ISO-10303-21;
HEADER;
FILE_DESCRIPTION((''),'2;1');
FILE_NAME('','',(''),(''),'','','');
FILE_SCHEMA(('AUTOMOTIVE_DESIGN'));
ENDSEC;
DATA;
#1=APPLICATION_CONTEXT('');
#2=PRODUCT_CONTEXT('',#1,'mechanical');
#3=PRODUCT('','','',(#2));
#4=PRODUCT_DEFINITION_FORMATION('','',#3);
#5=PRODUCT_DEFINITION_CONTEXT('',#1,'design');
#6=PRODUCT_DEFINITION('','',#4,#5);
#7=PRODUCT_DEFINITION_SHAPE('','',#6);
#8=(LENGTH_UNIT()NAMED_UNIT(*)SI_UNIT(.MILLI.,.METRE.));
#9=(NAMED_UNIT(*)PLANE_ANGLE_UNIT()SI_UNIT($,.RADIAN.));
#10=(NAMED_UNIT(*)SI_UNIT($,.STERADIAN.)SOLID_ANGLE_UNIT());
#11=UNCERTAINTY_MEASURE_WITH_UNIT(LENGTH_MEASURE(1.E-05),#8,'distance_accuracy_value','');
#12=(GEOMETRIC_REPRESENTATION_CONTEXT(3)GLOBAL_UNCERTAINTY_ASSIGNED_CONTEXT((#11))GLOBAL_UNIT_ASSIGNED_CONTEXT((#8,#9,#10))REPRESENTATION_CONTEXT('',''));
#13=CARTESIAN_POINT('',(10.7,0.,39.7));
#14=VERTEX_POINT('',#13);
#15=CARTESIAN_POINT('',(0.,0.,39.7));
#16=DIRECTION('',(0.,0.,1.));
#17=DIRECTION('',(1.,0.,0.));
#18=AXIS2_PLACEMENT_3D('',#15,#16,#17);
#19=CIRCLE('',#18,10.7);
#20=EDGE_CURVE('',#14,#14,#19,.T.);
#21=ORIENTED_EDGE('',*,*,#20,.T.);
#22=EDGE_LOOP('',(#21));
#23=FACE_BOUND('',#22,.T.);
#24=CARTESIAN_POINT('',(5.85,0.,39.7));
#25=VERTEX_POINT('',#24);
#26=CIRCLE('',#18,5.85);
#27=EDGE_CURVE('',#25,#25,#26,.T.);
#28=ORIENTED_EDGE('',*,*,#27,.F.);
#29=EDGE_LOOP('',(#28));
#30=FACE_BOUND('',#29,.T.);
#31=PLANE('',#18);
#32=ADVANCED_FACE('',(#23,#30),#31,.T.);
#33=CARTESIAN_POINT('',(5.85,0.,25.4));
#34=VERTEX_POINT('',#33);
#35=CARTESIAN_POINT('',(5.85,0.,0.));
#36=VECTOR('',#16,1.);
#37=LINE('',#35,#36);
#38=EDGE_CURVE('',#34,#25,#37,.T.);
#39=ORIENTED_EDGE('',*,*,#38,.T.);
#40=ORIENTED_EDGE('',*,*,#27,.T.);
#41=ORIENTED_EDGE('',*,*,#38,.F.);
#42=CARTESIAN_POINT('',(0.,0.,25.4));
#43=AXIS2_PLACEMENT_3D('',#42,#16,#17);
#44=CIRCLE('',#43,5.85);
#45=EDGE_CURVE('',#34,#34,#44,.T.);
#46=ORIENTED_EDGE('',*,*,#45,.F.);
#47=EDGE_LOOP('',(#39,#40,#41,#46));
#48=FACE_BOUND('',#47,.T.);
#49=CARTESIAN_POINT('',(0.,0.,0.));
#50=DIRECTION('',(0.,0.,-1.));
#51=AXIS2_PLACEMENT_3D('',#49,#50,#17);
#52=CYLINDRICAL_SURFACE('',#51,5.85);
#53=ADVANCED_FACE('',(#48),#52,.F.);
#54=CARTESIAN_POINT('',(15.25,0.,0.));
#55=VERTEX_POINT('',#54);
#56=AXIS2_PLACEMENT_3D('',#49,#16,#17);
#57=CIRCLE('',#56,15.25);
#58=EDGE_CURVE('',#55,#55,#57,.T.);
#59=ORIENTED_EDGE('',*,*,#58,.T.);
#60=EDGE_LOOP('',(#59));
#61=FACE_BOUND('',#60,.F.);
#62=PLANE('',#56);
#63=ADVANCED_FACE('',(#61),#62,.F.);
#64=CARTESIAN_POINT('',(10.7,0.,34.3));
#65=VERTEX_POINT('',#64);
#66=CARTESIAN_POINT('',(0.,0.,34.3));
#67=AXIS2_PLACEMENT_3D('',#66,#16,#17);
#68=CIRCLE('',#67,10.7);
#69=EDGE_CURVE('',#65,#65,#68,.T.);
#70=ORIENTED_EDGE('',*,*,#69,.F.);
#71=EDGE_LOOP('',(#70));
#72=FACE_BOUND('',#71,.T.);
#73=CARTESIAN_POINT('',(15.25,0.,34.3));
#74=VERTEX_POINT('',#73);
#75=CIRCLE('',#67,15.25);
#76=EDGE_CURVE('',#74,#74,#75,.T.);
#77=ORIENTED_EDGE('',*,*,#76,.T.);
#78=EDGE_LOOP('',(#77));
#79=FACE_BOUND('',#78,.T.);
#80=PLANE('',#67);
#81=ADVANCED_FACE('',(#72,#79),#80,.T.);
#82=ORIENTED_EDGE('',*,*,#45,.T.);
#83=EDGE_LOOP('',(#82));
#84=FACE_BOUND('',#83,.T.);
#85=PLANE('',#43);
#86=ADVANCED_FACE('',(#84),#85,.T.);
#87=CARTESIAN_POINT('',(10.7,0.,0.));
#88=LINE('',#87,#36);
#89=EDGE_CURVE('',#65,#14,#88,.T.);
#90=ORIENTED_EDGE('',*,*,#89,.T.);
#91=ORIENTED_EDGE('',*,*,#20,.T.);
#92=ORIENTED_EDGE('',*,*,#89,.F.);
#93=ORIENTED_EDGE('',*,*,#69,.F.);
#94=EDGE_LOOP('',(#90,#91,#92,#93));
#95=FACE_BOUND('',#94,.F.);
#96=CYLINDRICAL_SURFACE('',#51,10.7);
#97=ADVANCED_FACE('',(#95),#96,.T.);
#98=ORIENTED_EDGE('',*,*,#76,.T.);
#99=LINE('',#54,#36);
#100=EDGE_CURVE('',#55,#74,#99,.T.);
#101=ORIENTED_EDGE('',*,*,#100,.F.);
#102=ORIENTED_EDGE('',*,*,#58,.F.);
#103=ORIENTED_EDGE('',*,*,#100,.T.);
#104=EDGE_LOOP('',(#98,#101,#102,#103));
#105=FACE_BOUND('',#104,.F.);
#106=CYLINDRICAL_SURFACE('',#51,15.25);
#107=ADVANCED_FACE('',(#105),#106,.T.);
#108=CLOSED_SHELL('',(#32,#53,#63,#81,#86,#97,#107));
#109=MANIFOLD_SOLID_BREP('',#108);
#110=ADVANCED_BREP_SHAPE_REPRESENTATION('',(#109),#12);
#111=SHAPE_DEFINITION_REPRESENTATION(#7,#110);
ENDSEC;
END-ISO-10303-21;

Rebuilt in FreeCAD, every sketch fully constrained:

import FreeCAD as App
import Part
import Sketcher

doc = App.newDocument("Part")
body = doc.addObject("PartDesign::Body", "Body")

sketch1 = doc.addObject("Sketcher::SketchObject", "Sketch")
body.addObject(sketch1)
sketch1.AttachmentSupport = (doc.XY_Plane, [""])
sketch1.MapMode = "FlatFace"
sketch1.addGeometry(Part.Circle(App.Vector(0, 0, 0), App.Vector(0, 0, 1), 15.25), False)
sketch1.addGeometry(Part.Circle(App.Vector(0, 0, 0), App.Vector(0, 0, 1), 10.7), False)
sketch1.addConstraint(Sketcher.Constraint("Coincident", 0, 3, -1, 1))
sketch1.addConstraint(Sketcher.Constraint("Coincident", 1, 3, -1, 1))
sketch1.addConstraint(Sketcher.Constraint("Diameter", 0, 30.5))
sketch1.addConstraint(Sketcher.Constraint("Diameter", 1, 21.4))
pad1 = doc.addObject("PartDesign::Pad", "Pad")
body.addObject(pad1)
pad1.Profile = sketch1
pad1.Length = 34.3

sketch2 = doc.addObject("Sketcher::SketchObject", "Sketch001")
body.addObject(sketch2)
sketch2.AttachmentSupport = (doc.XY_Plane, [""])
sketch2.MapMode = "FlatFace"
sketch2.addGeometry(Part.Circle(App.Vector(0, 0, 0), App.Vector(0, 0, 1), 10.7), False)
sketch2.addGeometry(Part.Circle(App.Vector(0, 0, 0), App.Vector(0, 0, 1), 5.85), False)
sketch2.addConstraint(Sketcher.Constraint("Coincident", 0, 3, -1, 1))
sketch2.addConstraint(Sketcher.Constraint("Coincident", 1, 3, -1, 1))
sketch2.addConstraint(Sketcher.Constraint("Diameter", 0, 21.4))
sketch2.addConstraint(Sketcher.Constraint("Diameter", 1, 11.7))
pad2 = doc.addObject("PartDesign::Pad", "Pad001")
body.addObject(pad2)
pad2.Profile = sketch2
pad2.Length = 39.7

sketch3 = doc.addObject("Sketcher::SketchObject", "Sketch002")
body.addObject(sketch3)
sketch3.AttachmentSupport = (doc.XY_Plane, [""])
sketch3.MapMode = "FlatFace"
sketch3.addGeometry(Part.Circle(App.Vector(0, 0, 0), App.Vector(0, 0, 1), 5.85), False)
sketch3.addConstraint(Sketcher.Constraint("Coincident", 0, 3, -1, 1))
sketch3.addConstraint(Sketcher.Constraint("Diameter", 0, 11.7))
pad3 = doc.addObject("PartDesign::Pad", "Pad002")
body.addObject(pad3)
pad3.Profile = sketch3
pad3.Length = 25.4

doc.recompute()
